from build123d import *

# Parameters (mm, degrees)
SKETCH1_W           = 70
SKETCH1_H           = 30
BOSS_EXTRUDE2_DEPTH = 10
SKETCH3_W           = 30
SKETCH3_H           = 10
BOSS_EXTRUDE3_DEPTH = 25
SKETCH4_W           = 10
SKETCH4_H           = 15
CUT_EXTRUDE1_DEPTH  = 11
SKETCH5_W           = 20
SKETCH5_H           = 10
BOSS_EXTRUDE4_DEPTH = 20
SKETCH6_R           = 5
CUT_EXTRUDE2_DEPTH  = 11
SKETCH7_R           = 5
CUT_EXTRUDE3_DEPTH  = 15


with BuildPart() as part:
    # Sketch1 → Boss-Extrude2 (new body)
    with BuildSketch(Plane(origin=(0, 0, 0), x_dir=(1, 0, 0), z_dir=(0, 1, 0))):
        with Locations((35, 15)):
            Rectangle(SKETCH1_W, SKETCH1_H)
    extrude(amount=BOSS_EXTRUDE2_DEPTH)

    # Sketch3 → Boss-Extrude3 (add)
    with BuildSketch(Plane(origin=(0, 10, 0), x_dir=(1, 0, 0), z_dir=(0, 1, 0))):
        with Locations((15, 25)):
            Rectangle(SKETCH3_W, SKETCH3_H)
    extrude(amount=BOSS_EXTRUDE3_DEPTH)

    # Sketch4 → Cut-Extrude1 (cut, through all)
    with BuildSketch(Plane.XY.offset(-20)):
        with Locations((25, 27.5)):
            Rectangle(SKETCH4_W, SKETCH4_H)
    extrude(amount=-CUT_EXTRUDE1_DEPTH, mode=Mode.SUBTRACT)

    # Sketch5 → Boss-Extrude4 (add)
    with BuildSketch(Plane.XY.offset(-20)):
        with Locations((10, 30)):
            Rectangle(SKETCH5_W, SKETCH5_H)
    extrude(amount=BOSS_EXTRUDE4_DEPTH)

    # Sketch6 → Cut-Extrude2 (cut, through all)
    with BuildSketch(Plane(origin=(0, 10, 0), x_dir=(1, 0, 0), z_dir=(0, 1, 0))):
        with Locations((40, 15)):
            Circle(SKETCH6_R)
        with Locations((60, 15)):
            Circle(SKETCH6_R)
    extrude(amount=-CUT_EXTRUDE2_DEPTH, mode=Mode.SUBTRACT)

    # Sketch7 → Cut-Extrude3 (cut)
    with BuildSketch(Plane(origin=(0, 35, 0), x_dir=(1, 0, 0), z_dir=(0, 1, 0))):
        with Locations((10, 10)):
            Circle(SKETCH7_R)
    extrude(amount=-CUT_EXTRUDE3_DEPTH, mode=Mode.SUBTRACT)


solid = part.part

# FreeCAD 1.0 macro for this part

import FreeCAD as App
import Part
import Sketcher

V = App.Vector
Q = App.Units.Quantity

doc = App.newDocument("Part")
body = doc.addObject("PartDesign::Body", "Body")

# Sketch on XZ plane
sketch1 = doc.addObject("Sketcher::SketchObject", "Sketch")
body.addObject(sketch1)
sketch1.AttachmentSupport = (doc.XZ_Plane, [""])
sketch1.MapMode = "FlatFace"
sketch1.addGeometry(Part.LineSegment(V(0, -30, 0), V(0, 0, 0)), False)
sketch1.addGeometry(Part.LineSegment(V(0, 0, 0), V(70, 0, 0)), False)
sketch1.addGeometry(Part.LineSegment(V(70, 0, 0), V(70, -30, 0)), False)
sketch1.addGeometry(Part.LineSegment(V(70, -30, 0), V(0, -30, 0)), False)
sketch1.addConstraint(Sketcher.Constraint("Coincident", 0, 2, 1, 1))
sketch1.addConstraint(Sketcher.Constraint("Coincident", 1, 2, 2, 1))
sketch1.addConstraint(Sketcher.Constraint("Coincident", 2, 2, 3, 1))
sketch1.addConstraint(Sketcher.Constraint("Coincident", 3, 2, 0, 1))
sketch1.addConstraint(Sketcher.Constraint("Vertical", 0))
sketch1.addConstraint(Sketcher.Constraint("Horizontal", 1))
sketch1.addConstraint(Sketcher.Constraint("Vertical", 2))
sketch1.addConstraint(Sketcher.Constraint("Horizontal", 3))
sketch1.addConstraint(Sketcher.Constraint("Coincident", 0, 2, -1, 1))
sketch1.addConstraint(Sketcher.Constraint("DistanceX", 1, 1, 1, 2, Q("70 mm")))
sketch1.addConstraint(Sketcher.Constraint("DistanceY", 0, 1, 0, 2, Q("30 mm")))
pad1 = doc.addObject("PartDesign::Pad", "Pad")
body.addObject(pad1)
pad1.Profile = sketch1
pad1.Length = 10
pad1.Reversed = True

# Sketch on XZ plane
sketch2 = doc.addObject("Sketcher::SketchObject", "Sketch001")
body.addObject(sketch2)
sketch2.AttachmentSupport = (doc.XZ_Plane, [""])
sketch2.MapMode = "FlatFace"
sketch2.AttachmentOffset = App.Placement(V(0, 0, -10), App.Rotation())
sketch2.addGeometry(Part.LineSegment(V(0, -30, 0), V(0, -20, 0)), False)
sketch2.addGeometry(Part.LineSegment(V(0, -20, 0), V(30, -20, 0)), False)
sketch2.addGeometry(Part.LineSegment(V(30, -20, 0), V(30, -30, 0)), False)
sketch2.addGeometry(Part.LineSegment(V(30, -30, 0), V(0, -30, 0)), False)
sketch2.addConstraint(Sketcher.Constraint("Coincident", 0, 2, 1, 1))
sketch2.addConstraint(Sketcher.Constraint("Coincident", 1, 2, 2, 1))
sketch2.addConstraint(Sketcher.Constraint("Coincident", 2, 2, 3, 1))
sketch2.addConstraint(Sketcher.Constraint("Coincident", 3, 2, 0, 1))
sketch2.addConstraint(Sketcher.Constraint("Vertical", 0))
sketch2.addConstraint(Sketcher.Constraint("Horizontal", 1))
sketch2.addConstraint(Sketcher.Constraint("Vertical", 2))
sketch2.addConstraint(Sketcher.Constraint("Horizontal", 3))
sketch2.addConstraint(Sketcher.Constraint("PointOnObject", 0, 2, -2))
sketch2.addConstraint(Sketcher.Constraint("DistanceX", 1, 1, 1, 2, Q("30 mm")))
sketch2.addConstraint(Sketcher.Constraint("DistanceY", 0, 1, 0, 2, Q("10 mm")))
sketch2.addConstraint(Sketcher.Constraint("DistanceY", 0, 2, -1, 1, Q("20 mm")))
pad2 = doc.addObject("PartDesign::Pad", "Pad001")
body.addObject(pad2)
pad2.Profile = sketch2
pad2.Length = 25
pad2.Reversed = True

# Sketch on XY plane
sketch3 = doc.addObject("Sketcher::SketchObject", "Sketch002")
body.addObject(sketch3)
sketch3.AttachmentSupport = (doc.XY_Plane, [""])
sketch3.MapMode = "FlatFace"
sketch3.AttachmentOffset = App.Placement(V(0, 0, -20), App.Rotation())
sketch3.addGeometry(Part.LineSegment(V(20, 35, 0), V(20, 20, 0)), False)
sketch3.addGeometry(Part.LineSegment(V(20, 20, 0), V(30, 20, 0)), False)
sketch3.addGeometry(Part.LineSegment(V(30, 20, 0), V(30, 35, 0)), False)
sketch3.addGeometry(Part.LineSegment(V(30, 35, 0), V(20, 35, 0)), False)
sketch3.addConstraint(Sketcher.Constraint("Coincident", 0, 2, 1, 1))
sketch3.addConstraint(Sketcher.Constraint("Coincident", 1, 2, 2, 1))
sketch3.addConstraint(Sketcher.Constraint("Coincident", 2, 2, 3, 1))
sketch3.addConstraint(Sketcher.Constraint("Coincident", 3, 2, 0, 1))
sketch3.addConstraint(Sketcher.Constraint("Vertical", 0))
sketch3.addConstraint(Sketcher.Constraint("Horizontal", 1))
sketch3.addConstraint(Sketcher.Constraint("Vertical", 2))
sketch3.addConstraint(Sketcher.Constraint("Horizontal", 3))
sketch3.addConstraint(Sketcher.Constraint("DistanceX", 1, 1, 1, 2, Q("10 mm")))
sketch3.addConstraint(Sketcher.Constraint("DistanceY", 0, 2, 0, 1, Q("15 mm")))
sketch3.addConstraint(Sketcher.Constraint("DistanceX", -1, 1, 0, 2, Q("20 mm")))
sketch3.addConstraint(Sketcher.Constraint("DistanceY", -1, 1, 0, 2, Q("20 mm")))
pocket1 = doc.addObject("PartDesign::Pocket", "Pocket")
body.addObject(pocket1)
pocket1.Profile = sketch3
pocket1.Type = "ThroughAll"

# Sketch on XY plane
sketch4 = doc.addObject("Sketcher::SketchObject", "Sketch003")
body.addObject(sketch4)
sketch4.AttachmentSupport = (doc.XY_Plane, [""])
sketch4.MapMode = "FlatFace"
sketch4.AttachmentOffset = App.Placement(V(0, 0, -20), App.Rotation())
sketch4.addGeometry(Part.LineSegment(V(0, 35, 0), V(0, 25, 0)), False)
sketch4.addGeometry(Part.LineSegment(V(0, 25, 0), V(20, 25, 0)), False)
sketch4.addGeometry(Part.LineSegment(V(20, 25, 0), V(20, 35, 0)), False)
sketch4.addGeometry(Part.LineSegment(V(20, 35, 0), V(0, 35, 0)), False)
sketch4.addConstraint(Sketcher.Constraint("Coincident", 0, 2, 1, 1))
sketch4.addConstraint(Sketcher.Constraint("Coincident", 1, 2, 2, 1))
sketch4.addConstraint(Sketcher.Constraint("Coincident", 2, 2, 3, 1))
sketch4.addConstraint(Sketcher.Constraint("Coincident", 3, 2, 0, 1))
sketch4.addConstraint(Sketcher.Constraint("Vertical", 0))
sketch4.addConstraint(Sketcher.Constraint("Horizontal", 1))
sketch4.addConstraint(Sketcher.Constraint("Vertical", 2))
sketch4.addConstraint(Sketcher.Constraint("Horizontal", 3))
sketch4.addConstraint(Sketcher.Constraint("PointOnObject", 0, 2, -2))
sketch4.addConstraint(Sketcher.Constraint("DistanceX", 1, 1, 1, 2, Q("20 mm")))
sketch4.addConstraint(Sketcher.Constraint("DistanceY", 0, 2, 0, 1, Q("10 mm")))
sketch4.addConstraint(Sketcher.Constraint("DistanceY", -1, 1, 0, 2, Q("25 mm")))
pad3 = doc.addObject("PartDesign::Pad", "Pad002")
body.addObject(pad3)
pad3.Profile = sketch4
pad3.Length = 20

# Sketch on XZ plane
sketch5 = doc.addObject("Sketcher::SketchObject", "Sketch004")
body.addObject(sketch5)
sketch5.AttachmentSupport = (doc.XZ_Plane, [""])
sketch5.MapMode = "FlatFace"
sketch5.AttachmentOffset = App.Placement(V(0, 0, -10), App.Rotation())
sketch5.addGeometry(Part.Circle(V(40, -15, 0), V(0, 0, 1), 5), False)
sketch5.addGeometry(Part.Circle(V(60, -15, 0), V(0, 0, 1), 5), False)
sketch5.addConstraint(Sketcher.Constraint("Equal", 0, 1))
sketch5.addConstraint(Sketcher.Constraint("Horizontal", 0, 3, 1, 3))
sketch5.addConstraint(Sketcher.Constraint("Diameter", 0, Q("10 mm")))
sketch5.addConstraint(Sketcher.Constraint("DistanceX", -1, 1, 0, 3, Q("40 mm")))
sketch5.addConstraint(Sketcher.Constraint("DistanceY", 0, 3, -1, 1, Q("15 mm")))
sketch5.addConstraint(Sketcher.Constraint("DistanceX", -1, 1, 1, 3, Q("60 mm")))
pocket2 = doc.addObject("PartDesign::Pocket", "Pocket001")
body.addObject(pocket2)
pocket2.Profile = sketch5
pocket2.Type = "ThroughAll"
pocket2.Reversed = True

# Sketch on XZ plane
sketch6 = doc.addObject("Sketcher::SketchObject", "Sketch005")
body.addObject(sketch6)
sketch6.AttachmentSupport = (doc.XZ_Plane, [""])
sketch6.MapMode = "FlatFace"
sketch6.AttachmentOffset = App.Placement(V(0, 0, -35), App.Rotation())
sketch6.addGeometry(Part.Circle(V(10, -10, 0), V(0, 0, 1), 5), False)
sketch6.addConstraint(Sketcher.Constraint("Diameter", 0, Q("10 mm")))
sketch6.addConstraint(Sketcher.Constraint("DistanceX", -1, 1, 0, 3, Q("10 mm")))
sketch6.addConstraint(Sketcher.Constraint("DistanceY", 0, 3, -1, 1, Q("10 mm")))
pocket3 = doc.addObject("PartDesign::Pocket", "Pocket002")
body.addObject(pocket3)
pocket3.Profile = sketch6
pocket3.Length = 15
pocket3.Reversed = True

doc.recompute()
